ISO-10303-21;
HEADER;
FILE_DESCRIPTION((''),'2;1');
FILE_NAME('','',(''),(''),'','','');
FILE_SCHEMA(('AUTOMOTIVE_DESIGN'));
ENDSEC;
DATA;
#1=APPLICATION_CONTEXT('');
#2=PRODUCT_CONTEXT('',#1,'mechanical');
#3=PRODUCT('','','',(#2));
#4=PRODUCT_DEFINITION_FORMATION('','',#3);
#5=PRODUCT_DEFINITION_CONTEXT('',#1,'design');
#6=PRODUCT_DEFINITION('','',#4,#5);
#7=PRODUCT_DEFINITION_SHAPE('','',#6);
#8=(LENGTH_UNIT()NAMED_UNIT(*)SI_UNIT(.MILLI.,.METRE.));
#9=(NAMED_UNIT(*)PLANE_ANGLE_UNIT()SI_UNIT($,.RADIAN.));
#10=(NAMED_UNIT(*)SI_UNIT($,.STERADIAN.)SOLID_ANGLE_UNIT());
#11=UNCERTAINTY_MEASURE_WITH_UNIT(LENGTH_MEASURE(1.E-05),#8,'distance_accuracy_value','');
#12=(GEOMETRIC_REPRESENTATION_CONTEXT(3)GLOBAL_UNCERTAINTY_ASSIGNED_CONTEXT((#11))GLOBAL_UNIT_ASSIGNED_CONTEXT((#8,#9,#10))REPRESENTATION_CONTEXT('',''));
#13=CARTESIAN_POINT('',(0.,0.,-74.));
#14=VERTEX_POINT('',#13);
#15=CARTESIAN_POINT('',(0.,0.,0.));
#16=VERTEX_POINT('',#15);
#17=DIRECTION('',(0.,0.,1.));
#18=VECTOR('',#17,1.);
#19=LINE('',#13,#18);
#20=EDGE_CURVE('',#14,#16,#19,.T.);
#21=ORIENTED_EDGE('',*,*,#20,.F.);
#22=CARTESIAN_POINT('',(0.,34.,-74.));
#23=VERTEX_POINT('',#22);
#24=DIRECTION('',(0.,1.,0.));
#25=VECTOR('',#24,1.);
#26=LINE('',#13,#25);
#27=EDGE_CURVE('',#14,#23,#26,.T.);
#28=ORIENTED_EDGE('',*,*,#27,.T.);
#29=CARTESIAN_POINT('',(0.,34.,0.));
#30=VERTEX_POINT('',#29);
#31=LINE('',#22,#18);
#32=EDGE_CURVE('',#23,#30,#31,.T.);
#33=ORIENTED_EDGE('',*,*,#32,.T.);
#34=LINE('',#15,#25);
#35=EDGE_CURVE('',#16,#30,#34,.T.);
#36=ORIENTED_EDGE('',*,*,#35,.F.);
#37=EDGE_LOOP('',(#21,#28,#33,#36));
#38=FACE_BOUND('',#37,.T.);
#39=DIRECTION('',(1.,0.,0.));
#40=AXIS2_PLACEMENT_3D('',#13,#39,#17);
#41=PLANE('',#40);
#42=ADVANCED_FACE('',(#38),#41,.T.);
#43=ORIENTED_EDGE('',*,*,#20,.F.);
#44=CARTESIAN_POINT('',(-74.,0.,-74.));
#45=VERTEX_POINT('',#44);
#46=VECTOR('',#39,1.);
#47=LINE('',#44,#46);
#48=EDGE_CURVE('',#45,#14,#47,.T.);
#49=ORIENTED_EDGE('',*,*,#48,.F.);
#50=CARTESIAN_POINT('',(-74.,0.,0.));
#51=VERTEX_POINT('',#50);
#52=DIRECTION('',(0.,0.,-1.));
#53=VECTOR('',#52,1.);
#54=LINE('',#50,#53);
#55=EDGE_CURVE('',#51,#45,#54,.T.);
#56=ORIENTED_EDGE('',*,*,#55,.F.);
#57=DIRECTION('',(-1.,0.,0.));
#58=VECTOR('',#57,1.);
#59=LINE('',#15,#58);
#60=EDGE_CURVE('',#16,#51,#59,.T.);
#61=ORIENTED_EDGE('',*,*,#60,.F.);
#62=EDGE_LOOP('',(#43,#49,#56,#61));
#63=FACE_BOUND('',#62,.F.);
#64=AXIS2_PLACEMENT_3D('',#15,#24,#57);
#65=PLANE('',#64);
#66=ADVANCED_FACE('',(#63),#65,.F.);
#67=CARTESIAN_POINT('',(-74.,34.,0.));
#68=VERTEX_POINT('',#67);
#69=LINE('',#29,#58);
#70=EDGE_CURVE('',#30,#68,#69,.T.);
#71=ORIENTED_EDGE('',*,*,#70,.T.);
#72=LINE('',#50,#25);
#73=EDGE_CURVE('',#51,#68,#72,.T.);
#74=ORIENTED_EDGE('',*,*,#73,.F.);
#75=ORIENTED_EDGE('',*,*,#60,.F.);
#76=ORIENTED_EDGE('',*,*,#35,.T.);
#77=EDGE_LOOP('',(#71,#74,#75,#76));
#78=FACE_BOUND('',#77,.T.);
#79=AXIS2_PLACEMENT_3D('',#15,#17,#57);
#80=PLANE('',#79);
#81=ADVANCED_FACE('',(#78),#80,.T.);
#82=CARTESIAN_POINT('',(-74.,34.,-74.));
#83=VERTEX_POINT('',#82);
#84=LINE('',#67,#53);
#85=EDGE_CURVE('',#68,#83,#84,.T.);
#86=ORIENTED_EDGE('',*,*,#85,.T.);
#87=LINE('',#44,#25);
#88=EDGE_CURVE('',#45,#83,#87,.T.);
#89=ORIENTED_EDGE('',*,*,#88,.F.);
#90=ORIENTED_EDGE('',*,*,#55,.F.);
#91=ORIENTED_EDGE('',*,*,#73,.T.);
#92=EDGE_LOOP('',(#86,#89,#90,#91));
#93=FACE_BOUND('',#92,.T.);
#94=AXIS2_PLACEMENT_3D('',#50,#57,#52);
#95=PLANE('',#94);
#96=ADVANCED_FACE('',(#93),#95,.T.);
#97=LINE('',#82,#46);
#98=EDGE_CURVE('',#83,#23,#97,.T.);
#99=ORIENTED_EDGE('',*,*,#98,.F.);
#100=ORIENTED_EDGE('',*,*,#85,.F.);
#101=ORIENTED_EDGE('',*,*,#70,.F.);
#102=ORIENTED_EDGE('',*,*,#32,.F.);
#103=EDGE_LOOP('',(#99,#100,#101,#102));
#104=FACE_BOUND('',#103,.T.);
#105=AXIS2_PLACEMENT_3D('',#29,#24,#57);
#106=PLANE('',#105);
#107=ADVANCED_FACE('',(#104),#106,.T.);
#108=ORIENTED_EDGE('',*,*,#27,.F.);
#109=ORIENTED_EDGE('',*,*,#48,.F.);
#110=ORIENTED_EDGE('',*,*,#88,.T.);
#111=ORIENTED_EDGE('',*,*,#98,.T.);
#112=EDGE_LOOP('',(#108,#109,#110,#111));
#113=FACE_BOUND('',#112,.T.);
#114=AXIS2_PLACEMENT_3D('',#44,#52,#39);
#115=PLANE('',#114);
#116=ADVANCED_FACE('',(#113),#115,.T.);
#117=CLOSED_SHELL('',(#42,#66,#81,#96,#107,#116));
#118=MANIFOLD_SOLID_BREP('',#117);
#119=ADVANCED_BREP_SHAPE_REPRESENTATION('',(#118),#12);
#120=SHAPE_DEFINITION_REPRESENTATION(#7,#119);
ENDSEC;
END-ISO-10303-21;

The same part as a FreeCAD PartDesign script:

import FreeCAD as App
import Part
import Sketcher
from FreeCAD import Vector


def add_polygon(sketch, points):
    """Adds a closed chain of lines whose ends are joined by coincident constraints."""
    first, n = sketch.GeometryCount, len(points)
    for a, b in zip(points, points[1:] + points[:1]):
        sketch.addGeometry(Part.LineSegment(App.Vector(*a, 0), App.Vector(*b, 0)), False)
    for i in range(n):
        sketch.addConstraint(Sketcher.Constraint("Coincident", first + i, 2, first + (i + 1) % n, 1))

doc = App.newDocument("Part")
body = doc.addObject("PartDesign::Body", "Body")

sketch1 = doc.addObject("Sketcher::SketchObject", "Sketch")
body.addObject(sketch1)
sketch1.AttachmentSupport = (doc.XZ_Plane, [""])
sketch1.MapMode = "FlatFace"
add_polygon(sketch1, [(-74, 0), (0, 0), (0, -74), (-74, -74)])
sketch1.addConstraint(Sketcher.Constraint("Horizontal", 0))
sketch1.addConstraint(Sketcher.Constraint("Vertical", 1))
sketch1.addConstraint(Sketcher.Constraint("Horizontal", 2))
sketch1.addConstraint(Sketcher.Constraint("Vertical", 3))
sketch1.addConstraint(Sketcher.Constraint("Coincident", 0, 2, -1, 1))
sketch1.addConstraint(Sketcher.Constraint("Equal", 2, 1))
sketch1.addConstraint(Sketcher.Constraint("DistanceX", 0, 1, 0, 2, 74.0))
pad1 = doc.addObject("PartDesign::Pad", "Pad")
body.addObject(pad1)
pad1.Profile = sketch1
pad1.Length = 34
pad1.Reversed = True

doc.recompute()
